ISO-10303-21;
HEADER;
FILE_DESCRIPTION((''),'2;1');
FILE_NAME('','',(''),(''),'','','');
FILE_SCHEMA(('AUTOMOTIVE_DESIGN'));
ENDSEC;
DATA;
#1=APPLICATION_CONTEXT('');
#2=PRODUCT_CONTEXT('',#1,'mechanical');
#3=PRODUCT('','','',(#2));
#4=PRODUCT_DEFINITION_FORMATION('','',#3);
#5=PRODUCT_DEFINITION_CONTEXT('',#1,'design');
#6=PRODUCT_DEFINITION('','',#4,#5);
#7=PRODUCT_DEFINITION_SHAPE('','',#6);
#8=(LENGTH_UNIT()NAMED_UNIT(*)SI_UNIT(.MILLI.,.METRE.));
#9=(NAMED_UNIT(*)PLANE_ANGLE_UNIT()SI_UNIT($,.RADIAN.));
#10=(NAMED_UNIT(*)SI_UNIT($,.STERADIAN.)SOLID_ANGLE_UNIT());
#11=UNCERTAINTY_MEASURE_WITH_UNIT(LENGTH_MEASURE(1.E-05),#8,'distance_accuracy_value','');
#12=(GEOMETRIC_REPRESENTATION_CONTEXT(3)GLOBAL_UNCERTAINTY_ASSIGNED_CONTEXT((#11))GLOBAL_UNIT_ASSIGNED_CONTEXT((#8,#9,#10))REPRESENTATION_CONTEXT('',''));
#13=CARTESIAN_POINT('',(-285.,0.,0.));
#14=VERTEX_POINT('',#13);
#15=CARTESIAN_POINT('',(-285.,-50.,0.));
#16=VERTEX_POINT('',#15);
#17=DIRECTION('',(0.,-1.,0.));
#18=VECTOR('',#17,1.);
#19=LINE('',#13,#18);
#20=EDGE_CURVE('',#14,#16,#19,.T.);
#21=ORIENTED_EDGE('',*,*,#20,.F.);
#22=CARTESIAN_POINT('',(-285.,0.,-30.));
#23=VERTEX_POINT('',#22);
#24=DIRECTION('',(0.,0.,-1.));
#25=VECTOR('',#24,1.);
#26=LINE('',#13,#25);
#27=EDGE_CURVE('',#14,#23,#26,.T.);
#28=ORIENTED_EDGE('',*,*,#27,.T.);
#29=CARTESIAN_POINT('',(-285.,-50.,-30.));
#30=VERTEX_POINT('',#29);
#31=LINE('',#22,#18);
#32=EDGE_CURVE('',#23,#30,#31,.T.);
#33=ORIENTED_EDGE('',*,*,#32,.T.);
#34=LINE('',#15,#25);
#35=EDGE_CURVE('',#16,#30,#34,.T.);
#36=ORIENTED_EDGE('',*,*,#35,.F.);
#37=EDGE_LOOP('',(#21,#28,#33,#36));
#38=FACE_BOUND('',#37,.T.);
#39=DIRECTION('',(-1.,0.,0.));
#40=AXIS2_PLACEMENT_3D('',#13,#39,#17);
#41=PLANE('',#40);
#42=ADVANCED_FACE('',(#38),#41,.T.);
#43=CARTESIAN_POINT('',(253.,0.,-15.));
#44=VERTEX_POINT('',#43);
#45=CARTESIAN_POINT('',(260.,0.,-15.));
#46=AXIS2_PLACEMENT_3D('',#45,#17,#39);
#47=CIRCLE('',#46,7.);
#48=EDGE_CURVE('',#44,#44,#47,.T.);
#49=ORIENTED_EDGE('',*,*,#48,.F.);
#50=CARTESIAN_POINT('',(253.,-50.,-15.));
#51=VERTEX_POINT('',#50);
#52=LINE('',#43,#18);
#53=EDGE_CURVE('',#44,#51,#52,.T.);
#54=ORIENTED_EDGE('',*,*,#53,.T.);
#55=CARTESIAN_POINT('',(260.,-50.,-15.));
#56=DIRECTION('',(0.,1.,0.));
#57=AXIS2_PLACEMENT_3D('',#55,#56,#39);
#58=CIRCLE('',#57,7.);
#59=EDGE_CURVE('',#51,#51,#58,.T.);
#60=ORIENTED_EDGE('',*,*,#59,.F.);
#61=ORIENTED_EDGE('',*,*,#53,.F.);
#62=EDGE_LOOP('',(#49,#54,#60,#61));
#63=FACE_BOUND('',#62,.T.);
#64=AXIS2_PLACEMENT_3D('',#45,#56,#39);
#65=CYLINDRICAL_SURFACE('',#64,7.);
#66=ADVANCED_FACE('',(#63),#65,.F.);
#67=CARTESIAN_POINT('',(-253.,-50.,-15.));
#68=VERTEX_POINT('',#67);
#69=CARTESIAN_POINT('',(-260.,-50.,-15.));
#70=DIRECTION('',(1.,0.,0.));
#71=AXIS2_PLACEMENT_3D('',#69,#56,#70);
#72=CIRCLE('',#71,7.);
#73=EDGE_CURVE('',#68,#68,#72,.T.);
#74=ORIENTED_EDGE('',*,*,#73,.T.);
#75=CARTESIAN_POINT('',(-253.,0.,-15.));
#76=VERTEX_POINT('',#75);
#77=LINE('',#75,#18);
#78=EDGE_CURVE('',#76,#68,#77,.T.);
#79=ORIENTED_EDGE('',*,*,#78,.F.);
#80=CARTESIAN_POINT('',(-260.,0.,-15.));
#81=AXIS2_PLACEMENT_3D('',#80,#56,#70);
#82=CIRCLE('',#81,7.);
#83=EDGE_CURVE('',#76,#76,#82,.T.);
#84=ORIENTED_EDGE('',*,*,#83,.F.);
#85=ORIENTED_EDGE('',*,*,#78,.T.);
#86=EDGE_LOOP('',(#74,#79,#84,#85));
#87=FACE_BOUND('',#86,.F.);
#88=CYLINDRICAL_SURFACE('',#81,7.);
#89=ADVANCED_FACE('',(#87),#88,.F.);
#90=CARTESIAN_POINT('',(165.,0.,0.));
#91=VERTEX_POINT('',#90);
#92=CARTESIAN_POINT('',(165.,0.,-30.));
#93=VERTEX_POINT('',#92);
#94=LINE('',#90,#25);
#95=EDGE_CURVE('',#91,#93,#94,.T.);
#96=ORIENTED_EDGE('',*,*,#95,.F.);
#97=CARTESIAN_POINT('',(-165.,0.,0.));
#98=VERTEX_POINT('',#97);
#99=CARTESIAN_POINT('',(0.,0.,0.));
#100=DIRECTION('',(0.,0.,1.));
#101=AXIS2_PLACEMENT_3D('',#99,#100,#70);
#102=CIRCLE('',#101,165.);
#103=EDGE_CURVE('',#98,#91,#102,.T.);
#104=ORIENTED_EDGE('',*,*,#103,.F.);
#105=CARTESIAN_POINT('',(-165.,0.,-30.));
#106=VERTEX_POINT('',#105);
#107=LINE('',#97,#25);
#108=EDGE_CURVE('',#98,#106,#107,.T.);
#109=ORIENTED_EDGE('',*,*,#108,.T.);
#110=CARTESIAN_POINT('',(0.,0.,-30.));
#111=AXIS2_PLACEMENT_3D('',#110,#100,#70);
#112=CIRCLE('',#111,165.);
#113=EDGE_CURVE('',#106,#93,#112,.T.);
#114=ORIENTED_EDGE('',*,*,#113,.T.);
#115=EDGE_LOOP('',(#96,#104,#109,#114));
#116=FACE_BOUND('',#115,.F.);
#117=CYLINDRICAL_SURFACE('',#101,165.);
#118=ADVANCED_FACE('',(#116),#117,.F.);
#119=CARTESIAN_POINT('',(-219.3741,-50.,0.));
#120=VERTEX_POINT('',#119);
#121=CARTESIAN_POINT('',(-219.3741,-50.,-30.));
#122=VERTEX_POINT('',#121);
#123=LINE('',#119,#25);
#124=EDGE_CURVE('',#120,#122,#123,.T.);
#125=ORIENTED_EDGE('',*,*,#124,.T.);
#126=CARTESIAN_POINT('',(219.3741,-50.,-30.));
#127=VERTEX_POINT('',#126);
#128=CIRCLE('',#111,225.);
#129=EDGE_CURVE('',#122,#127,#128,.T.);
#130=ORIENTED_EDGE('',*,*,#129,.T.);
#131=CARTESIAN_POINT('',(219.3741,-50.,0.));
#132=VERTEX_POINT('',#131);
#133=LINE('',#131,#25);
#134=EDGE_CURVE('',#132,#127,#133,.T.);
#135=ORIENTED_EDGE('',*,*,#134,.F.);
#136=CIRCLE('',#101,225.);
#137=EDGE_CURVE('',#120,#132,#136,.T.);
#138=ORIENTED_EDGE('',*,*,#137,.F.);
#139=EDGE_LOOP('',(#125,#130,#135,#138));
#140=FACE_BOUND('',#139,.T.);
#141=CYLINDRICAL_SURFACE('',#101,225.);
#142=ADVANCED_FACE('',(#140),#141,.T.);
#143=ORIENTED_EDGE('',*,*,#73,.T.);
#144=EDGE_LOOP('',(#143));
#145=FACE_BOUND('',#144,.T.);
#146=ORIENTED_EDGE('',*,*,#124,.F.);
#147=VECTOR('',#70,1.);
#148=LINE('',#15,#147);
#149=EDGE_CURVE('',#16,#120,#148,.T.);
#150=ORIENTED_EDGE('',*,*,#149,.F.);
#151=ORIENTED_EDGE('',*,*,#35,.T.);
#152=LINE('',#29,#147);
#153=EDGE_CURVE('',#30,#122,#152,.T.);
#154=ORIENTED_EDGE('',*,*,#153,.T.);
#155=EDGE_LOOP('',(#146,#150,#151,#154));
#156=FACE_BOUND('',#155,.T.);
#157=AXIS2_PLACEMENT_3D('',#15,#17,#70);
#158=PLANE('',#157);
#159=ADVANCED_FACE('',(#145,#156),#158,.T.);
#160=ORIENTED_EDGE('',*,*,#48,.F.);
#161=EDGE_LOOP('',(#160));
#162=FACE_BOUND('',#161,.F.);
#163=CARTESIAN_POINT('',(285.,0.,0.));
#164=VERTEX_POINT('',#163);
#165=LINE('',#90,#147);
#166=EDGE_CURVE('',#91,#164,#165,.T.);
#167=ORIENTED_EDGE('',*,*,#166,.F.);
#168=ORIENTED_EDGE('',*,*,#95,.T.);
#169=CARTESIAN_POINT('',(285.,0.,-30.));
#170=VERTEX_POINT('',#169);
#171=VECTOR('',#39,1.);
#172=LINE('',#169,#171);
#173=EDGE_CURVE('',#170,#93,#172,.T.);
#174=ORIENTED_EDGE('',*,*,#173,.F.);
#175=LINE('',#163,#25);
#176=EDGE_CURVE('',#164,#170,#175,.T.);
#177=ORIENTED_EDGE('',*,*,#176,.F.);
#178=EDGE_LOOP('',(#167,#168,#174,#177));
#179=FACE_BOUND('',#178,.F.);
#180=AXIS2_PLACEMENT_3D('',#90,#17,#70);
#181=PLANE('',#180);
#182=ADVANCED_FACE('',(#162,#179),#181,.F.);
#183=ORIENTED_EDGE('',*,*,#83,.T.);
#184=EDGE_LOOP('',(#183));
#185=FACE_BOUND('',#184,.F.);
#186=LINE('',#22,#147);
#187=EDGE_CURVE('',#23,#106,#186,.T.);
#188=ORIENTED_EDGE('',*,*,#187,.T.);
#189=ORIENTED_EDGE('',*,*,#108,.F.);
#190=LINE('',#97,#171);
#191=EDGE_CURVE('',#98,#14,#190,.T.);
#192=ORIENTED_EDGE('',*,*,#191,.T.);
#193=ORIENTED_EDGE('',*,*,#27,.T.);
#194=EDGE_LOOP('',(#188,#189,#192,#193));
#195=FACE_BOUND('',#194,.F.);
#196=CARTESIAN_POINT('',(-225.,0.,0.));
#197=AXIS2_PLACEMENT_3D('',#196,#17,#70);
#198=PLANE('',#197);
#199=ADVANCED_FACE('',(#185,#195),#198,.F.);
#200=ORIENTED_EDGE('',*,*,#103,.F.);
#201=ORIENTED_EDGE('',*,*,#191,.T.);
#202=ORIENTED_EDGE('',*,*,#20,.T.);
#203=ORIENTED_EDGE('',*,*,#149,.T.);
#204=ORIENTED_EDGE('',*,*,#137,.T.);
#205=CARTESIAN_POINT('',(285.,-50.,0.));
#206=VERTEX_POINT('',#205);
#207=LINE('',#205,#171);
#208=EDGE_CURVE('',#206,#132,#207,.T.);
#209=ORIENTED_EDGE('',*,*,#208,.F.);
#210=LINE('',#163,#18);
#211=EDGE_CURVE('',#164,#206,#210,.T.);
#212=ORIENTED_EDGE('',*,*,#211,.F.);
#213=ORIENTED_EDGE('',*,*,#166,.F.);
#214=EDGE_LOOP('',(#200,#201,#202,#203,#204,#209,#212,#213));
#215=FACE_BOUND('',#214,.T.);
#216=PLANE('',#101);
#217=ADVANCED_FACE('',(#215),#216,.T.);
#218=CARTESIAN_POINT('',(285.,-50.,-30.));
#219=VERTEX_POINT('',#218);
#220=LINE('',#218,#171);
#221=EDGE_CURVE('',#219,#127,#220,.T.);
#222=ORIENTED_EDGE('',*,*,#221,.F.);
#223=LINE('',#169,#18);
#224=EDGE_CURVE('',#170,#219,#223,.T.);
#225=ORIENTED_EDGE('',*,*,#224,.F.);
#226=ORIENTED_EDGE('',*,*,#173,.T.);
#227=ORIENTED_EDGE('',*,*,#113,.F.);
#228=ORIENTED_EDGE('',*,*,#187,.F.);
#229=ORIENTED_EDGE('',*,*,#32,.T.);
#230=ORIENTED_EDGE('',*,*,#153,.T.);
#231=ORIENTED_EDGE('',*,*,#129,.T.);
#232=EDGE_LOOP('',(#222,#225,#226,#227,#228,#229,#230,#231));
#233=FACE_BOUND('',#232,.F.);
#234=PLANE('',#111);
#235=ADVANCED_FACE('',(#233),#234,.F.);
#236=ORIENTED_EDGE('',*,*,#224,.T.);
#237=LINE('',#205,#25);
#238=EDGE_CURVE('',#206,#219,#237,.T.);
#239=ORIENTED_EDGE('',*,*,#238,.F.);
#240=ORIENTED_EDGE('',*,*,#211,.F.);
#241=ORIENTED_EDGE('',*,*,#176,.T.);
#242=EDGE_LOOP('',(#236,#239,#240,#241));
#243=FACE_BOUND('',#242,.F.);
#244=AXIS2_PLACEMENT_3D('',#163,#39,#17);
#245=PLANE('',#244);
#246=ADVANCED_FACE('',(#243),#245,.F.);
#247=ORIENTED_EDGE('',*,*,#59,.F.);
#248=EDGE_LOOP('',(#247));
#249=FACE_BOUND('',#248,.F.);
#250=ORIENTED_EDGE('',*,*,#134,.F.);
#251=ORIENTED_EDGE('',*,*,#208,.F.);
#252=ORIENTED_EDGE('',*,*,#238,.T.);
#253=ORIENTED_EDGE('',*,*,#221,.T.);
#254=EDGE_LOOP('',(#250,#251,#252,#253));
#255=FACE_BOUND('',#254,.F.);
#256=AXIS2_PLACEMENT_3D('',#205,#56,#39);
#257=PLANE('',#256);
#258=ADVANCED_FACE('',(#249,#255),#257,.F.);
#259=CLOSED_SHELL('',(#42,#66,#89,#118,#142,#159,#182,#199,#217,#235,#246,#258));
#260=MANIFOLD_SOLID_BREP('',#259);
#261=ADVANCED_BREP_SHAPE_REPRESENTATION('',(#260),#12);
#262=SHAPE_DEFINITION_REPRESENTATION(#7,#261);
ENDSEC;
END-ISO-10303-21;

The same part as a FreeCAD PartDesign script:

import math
import FreeCAD as App
import Part
import Sketcher

doc = App.newDocument("Part")
body = doc.addObject("PartDesign::Body", "Body")

# Sketch on XY plane
sketch1 = body.newObject("Sketcher::SketchObject", "Sketch")
sketch1.AttachmentSupport = (doc.getObject("XY_Plane"), [""])
sketch1.MapMode = "FlatFace"
sketch1.addGeometry(Part.ArcOfCircle(Part.Circle(App.Vector(0, 0, 0), App.Vector(0, 0, 1), 165), math.radians(180), math.radians(360)), False)
sketch1.addGeometry(Part.LineSegment(App.Vector(-165, 0, 0), App.Vector(-285, 0, 0)), False)
sketch1.addGeometry(Part.LineSegment(App.Vector(-285, 0, 0), App.Vector(-285, -50, 0)), False)
sketch1.addGeometry(Part.LineSegment(App.Vector(-285, -50, 0), App.Vector(-219, -50, 0)), False)
sketch1.addGeometry(Part.ArcOfCircle(Part.Circle(App.Vector(0, 0, 0), App.Vector(0, 0, 1), 225), math.radians(-167), math.radians(-13)), False)
sketch1.addGeometry(Part.LineSegment(App.Vector(219, -50, 0), App.Vector(285, -50, 0)), False)
sketch1.addGeometry(Part.LineSegment(App.Vector(285, -50, 0), App.Vector(285, 0, 0)), False)
sketch1.addGeometry(Part.LineSegment(App.Vector(285, 0, 0), App.Vector(165, 0, 0)), False)
sketch1.addConstraint(Sketcher.Constraint("Coincident", 0, 1, 1, 1))
sketch1.addConstraint(Sketcher.Constraint("Coincident", 1, 2, 2, 1))
sketch1.addConstraint(Sketcher.Constraint("Coincident", 2, 2, 3, 1))
sketch1.addConstraint(Sketcher.Constraint("Coincident", 3, 2, 4, 1))
sketch1.addConstraint(Sketcher.Constraint("Coincident", 4, 2, 5, 1))
sketch1.addConstraint(Sketcher.Constraint("Coincident", 5, 2, 6, 1))
sketch1.addConstraint(Sketcher.Constraint("Coincident", 6, 2, 7, 1))
sketch1.addConstraint(Sketcher.Constraint("Coincident", 7, 2, 0, 2))
sketch1.addConstraint(Sketcher.Constraint("Horizontal", 1))
sketch1.addConstraint(Sketcher.Constraint("Vertical", 2))
sketch1.addConstraint(Sketcher.Constraint("Horizontal", 3))
sketch1.addConstraint(Sketcher.Constraint("Horizontal", 5))
sketch1.addConstraint(Sketcher.Constraint("Vertical", 6))
sketch1.addConstraint(Sketcher.Constraint("Horizontal", 7))
sketch1.addConstraint(Sketcher.Constraint("Coincident", 0, 3, -1, 1))
sketch1.addConstraint(Sketcher.Constraint("Coincident", 4, 3, -1, 1))
sketch1.addConstraint(Sketcher.Constraint("Symmetric", 1, 2, 6, 2, -1, 1))
sketch1.addConstraint(Sketcher.Constraint("PointOnObject", 0, 1, -1))
sketch1.addConstraint(Sketcher.Constraint("Horizontal", 3, 2, 4, 2))
sketch1.addConstraint(Sketcher.Constraint("DistanceY", 2, 2, 2, 1, 50.0))
sketch1.addConstraint(Sketcher.Constraint("Radius", 0, 165.0))
sketch1.addConstraint(Sketcher.Constraint("Radius", 4, 225.0))
sketch1.addConstraint(Sketcher.Constraint("DistanceX", 1, 2, 1, 1, 120.0))
pad1 = body.newObject("PartDesign::Pad", "Pad")
pad1.Profile = sketch1
pad1.Length = 30
pad1.Reversed = True

# Sketch on XZ plane
sketch2 = body.newObject("Sketcher::SketchObject", "Sketch001")
sketch2.AttachmentSupport = (doc.getObject("XZ_Plane"), [""])
sketch2.MapMode = "FlatFace"
sketch2.addGeometry(Part.Circle(App.Vector(-260, -15, 0), App.Vector(0, 0, 1), 7), False)
sketch2.addConstraint(Sketcher.Constraint("Diameter", 0, 14.0))
sketch2.addConstraint(Sketcher.Constraint("DistanceX", 0, 3, -1, 1, 260.0))
sketch2.addConstraint(Sketcher.Constraint("DistanceY", 0, 3, -1, 1, 15.0))
pocket1 = body.newObject("PartDesign::Pocket", "Pocket")
pocket1.Profile = sketch2
pocket1.Type = "ThroughAll"
pocket1.Reversed = True
doc.recompute()

mirrored = body.newObject("PartDesign::Mirrored", "Mirrored")
mirrored.Originals = [pocket1]
mirrored.MirrorPlane = (doc.getObject("YZ_Plane"), [""])
body.Tip = mirrored

doc.recompute()
